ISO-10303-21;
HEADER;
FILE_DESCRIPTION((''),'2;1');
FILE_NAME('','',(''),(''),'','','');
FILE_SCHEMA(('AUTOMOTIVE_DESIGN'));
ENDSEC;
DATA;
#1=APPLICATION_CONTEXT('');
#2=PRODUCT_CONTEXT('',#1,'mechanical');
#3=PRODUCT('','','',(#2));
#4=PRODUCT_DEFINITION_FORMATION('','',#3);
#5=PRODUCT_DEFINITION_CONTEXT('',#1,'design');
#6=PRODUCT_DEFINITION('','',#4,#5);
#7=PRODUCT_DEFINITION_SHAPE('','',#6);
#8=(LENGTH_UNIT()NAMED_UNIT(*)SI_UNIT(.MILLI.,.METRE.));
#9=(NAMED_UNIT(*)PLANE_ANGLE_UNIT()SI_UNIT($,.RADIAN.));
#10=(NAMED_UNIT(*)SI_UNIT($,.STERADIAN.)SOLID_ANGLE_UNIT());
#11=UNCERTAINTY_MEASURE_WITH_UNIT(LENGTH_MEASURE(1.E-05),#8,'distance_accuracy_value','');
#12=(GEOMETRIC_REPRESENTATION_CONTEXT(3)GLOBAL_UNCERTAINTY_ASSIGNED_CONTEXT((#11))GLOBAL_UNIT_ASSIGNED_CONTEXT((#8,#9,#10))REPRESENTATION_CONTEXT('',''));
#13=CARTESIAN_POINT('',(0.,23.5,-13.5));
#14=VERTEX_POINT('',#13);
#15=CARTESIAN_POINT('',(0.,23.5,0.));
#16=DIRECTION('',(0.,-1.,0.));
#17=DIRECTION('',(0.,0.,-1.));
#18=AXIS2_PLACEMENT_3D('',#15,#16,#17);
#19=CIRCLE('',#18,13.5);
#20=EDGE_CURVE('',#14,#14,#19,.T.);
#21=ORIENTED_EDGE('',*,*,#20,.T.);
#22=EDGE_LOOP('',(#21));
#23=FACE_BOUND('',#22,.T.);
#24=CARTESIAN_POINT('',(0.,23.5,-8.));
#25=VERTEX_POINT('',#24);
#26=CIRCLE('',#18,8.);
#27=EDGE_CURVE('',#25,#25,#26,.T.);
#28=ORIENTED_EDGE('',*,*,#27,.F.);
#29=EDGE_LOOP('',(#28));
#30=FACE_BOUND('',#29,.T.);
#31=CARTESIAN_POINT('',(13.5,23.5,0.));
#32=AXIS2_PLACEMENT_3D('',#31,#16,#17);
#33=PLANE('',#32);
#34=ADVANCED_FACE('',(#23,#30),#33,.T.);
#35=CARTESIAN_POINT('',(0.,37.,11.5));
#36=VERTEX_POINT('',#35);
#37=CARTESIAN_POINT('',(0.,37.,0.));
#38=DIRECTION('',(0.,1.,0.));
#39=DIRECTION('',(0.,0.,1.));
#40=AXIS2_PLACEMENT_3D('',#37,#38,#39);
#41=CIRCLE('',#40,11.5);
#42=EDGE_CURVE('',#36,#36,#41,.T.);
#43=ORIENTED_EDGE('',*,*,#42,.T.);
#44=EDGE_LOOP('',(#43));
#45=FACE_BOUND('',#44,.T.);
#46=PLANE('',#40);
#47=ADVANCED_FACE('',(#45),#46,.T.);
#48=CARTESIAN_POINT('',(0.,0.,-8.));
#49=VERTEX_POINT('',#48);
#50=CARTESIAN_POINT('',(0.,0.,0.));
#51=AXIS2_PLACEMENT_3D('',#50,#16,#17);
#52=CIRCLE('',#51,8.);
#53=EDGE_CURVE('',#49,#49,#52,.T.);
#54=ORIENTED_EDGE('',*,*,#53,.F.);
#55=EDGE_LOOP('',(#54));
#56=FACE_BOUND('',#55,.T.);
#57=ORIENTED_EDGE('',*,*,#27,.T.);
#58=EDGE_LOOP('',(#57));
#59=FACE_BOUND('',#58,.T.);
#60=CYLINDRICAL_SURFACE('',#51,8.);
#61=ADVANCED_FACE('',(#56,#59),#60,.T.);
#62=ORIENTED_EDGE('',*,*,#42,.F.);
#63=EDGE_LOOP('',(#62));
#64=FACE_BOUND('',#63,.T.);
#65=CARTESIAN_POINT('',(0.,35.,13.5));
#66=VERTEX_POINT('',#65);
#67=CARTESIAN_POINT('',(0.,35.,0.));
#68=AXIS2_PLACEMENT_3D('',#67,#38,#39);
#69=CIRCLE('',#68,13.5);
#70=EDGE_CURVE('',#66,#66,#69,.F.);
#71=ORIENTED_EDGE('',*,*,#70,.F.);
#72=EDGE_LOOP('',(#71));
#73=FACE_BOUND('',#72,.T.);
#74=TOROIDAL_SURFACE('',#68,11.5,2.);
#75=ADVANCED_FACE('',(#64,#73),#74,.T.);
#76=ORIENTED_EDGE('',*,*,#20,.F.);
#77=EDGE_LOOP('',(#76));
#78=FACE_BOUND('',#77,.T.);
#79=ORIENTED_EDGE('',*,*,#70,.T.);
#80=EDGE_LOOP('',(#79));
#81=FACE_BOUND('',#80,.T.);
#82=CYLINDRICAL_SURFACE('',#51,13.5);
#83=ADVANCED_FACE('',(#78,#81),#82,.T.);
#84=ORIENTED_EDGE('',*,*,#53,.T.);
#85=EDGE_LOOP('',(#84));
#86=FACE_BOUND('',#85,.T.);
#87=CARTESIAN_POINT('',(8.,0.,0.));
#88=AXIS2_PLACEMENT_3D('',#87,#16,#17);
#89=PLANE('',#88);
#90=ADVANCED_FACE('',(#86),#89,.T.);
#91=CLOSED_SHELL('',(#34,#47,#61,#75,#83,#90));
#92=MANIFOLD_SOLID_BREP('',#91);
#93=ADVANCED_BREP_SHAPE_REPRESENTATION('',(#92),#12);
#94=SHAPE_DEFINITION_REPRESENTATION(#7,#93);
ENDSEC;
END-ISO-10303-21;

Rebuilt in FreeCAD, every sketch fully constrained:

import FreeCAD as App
import Part
import Sketcher
from FreeCAD import Vector
Q = App.Units.Quantity


def edges_at(feature, points):
    """Names of the edges that pass closest to the given points."""
    edges = feature.Shape.Edges
    near = lambda p: min(range(len(edges)), key=lambda i: edges[i].distToShape(Part.Vertex(*p))[0])
    return sorted({f"Edge{near(p) + 1}" for p in points})

doc = App.newDocument("Part")
body = doc.addObject("PartDesign::Body", "Body")

# Sketch on XY plane
sketch1 = body.newObject("Sketcher::SketchObject", "Sketch")
sketch1.AttachmentSupport = (doc.getObject("XY_Plane"), [""])
sketch1.MapMode = "FlatFace"
sketch1.addGeometry(Part.LineSegment(Vector(0, 37, 0), Vector(0, 0, 0)), False)
sketch1.addGeometry(Part.LineSegment(Vector(0, 0, 0), Vector(8, 0, 0)), False)
sketch1.addGeometry(Part.LineSegment(Vector(8, 0, 0), Vector(8, 23.5, 0)), False)
sketch1.addGeometry(Part.LineSegment(Vector(8, 23.5, 0), Vector(13.5, 23.5, 0)), False)
sketch1.addGeometry(Part.LineSegment(Vector(13.5, 23.5, 0), Vector(13.5, 37, 0)), False)
sketch1.addGeometry(Part.LineSegment(Vector(13.5, 37, 0), Vector(0, 37, 0)), False)
sketch1.addConstraint(Sketcher.Constraint("Coincident", 0, 2, 1, 1))
sketch1.addConstraint(Sketcher.Constraint("Coincident", 1, 2, 2, 1))
sketch1.addConstraint(Sketcher.Constraint("Coincident", 2, 2, 3, 1))
sketch1.addConstraint(Sketcher.Constraint("Coincident", 3, 2, 4, 1))
sketch1.addConstraint(Sketcher.Constraint("Coincident", 4, 2, 5, 1))
sketch1.addConstraint(Sketcher.Constraint("Coincident", 5, 2, 0, 1))
sketch1.addConstraint(Sketcher.Constraint("Vertical", 0))
sketch1.addConstraint(Sketcher.Constraint("Horizontal", 1))
sketch1.addConstraint(Sketcher.Constraint("Vertical", 2))
sketch1.addConstraint(Sketcher.Constraint("Horizontal", 3))
sketch1.addConstraint(Sketcher.Constraint("Vertical", 4))
sketch1.addConstraint(Sketcher.Constraint("Horizontal", 5))
sketch1.addConstraint(Sketcher.Constraint("Coincident", 0, 2, -1, 1))
sketch1.addConstraint(Sketcher.Constraint("Equal", 5, 4))
sketch1.addConstraint(Sketcher.Constraint("DistanceX", 1, 1, 1, 2, Q("8 mm")))
sketch1.addConstraint(Sketcher.Constraint("DistanceY", 0, 2, 0, 1, Q("37 mm")))
sketch1.addConstraint(Sketcher.Constraint("DistanceX", 3, 1, 3, 2, Q("5.5 mm")))
revolution = body.newObject("PartDesign::Revolution", "Revolution")
revolution.Profile = sketch1
revolution.ReferenceAxis = (sketch1, ["V_Axis"])
revolution.Angle = 360
doc.recompute()

fillet = body.newObject("PartDesign::Fillet", "Fillet")
fillet.Base = (revolution, edges_at(revolution, [(0, 37, 13.5)]))
fillet.Radius = 2

doc.recompute()
